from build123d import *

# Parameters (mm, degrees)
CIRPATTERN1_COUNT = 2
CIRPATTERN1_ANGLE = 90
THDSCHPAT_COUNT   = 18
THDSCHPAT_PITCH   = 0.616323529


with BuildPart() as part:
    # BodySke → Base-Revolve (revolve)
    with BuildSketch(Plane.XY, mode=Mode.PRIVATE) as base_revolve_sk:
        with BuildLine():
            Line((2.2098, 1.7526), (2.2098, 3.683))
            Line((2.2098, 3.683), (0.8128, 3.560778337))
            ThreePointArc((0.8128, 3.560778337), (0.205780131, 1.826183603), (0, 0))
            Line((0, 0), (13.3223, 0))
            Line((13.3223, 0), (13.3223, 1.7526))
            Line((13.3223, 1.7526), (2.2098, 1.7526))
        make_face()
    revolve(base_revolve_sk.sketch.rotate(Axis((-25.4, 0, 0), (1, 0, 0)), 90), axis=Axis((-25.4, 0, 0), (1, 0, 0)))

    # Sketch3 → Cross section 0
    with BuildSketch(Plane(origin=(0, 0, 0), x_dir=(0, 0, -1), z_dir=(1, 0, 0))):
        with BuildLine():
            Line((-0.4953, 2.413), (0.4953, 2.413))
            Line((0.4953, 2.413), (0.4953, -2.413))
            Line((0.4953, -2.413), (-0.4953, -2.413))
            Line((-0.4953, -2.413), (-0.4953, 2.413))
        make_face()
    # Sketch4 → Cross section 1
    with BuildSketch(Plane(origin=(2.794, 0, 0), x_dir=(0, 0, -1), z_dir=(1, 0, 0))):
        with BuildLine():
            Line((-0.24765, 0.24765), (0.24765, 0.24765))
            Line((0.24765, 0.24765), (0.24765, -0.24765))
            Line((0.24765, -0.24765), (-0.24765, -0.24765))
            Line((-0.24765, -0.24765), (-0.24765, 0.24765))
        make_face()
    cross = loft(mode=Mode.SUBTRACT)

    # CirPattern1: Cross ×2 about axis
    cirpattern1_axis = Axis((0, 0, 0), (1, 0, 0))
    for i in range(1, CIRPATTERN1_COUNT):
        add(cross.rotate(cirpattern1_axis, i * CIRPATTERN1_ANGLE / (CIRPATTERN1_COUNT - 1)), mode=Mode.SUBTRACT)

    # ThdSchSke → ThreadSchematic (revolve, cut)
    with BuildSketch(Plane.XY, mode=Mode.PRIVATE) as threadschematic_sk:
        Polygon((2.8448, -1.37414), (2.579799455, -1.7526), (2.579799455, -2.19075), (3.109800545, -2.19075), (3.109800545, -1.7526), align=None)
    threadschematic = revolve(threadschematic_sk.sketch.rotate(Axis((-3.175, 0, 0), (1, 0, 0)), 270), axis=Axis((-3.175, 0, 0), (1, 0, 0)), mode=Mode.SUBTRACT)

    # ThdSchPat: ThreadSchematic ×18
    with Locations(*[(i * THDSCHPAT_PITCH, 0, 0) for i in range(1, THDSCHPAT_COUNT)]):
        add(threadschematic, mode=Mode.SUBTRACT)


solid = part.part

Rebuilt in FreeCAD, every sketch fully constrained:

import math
import FreeCAD as App
import Part
import Sketcher
from FreeCAD import Vector
Q = App.Units.Quantity

doc = App.newDocument("Part")
params = doc.addObject("Spreadsheet::Sheet", "Params")
for row, (alias, value) in enumerate([
    ("sketch1_width", "0.4375 in"),
    ("sketch1_height", "0.076 in"),
    ("sketch1_height2", "0.069 in"),
    ("revolution_angle", "360 deg"),
    ("sketch2_width", "0.19 in"),
    ("sketch2_height", "0.039 in"),
    ("groove_angle", "360 deg"),
    ("linearpattern_pitch", "0.616324 mm"),
], start=1):
    params.set(f"A{row}", alias)
    params.set(f"B{row}", "=" + value)
    params.setAlias(f"B{row}", alias)

body = doc.addObject("PartDesign::Body", "Body")

# Sketch on XY plane
sketch1 = body.newObject("Sketcher::SketchObject", "Sketch")
sketch1.AttachmentSupport = (doc.getObject("XY_Plane"), [""])
sketch1.MapMode = "FlatFace"
sketch1.addGeometry(Part.LineSegment(Vector(2.2, 1.8, 0), Vector(2.2, 3.7, 0)), False)
sketch1.addGeometry(Part.LineSegment(Vector(2.2, 3.7, 0), Vector(0.8, 3.6, 0)), False)
sketch1.addGeometry(Part.ArcOfCircle(Part.Circle(Vector(8.2, 0, 0), Vector(0, 0, 1), 8.2), math.radians(154), math.radians(180)), False)
sketch1.addGeometry(Part.LineSegment(Vector(0, 0, 0), Vector(13.3, 0, 0)), False)
sketch1.addGeometry(Part.LineSegment(Vector(13.3, 0, 0), Vector(13.3, 1.8, 0)), False)
sketch1.addGeometry(Part.LineSegment(Vector(13.3, 1.8, 0), Vector(2.2, 1.8, 0)), False)
sketch1.addConstraint(Sketcher.Constraint("Coincident", 0, 2, 1, 1))
sketch1.addConstraint(Sketcher.Constraint("Coincident", 1, 2, 2, 1))
sketch1.addConstraint(Sketcher.Constraint("Coincident", 2, 2, 3, 1))
sketch1.addConstraint(Sketcher.Constraint("Coincident", 3, 2, 4, 1))
sketch1.addConstraint(Sketcher.Constraint("Coincident", 4, 2, 5, 1))
sketch1.addConstraint(Sketcher.Constraint("Coincident", 5, 2, 0, 1))
sketch1.addConstraint(Sketcher.Constraint("Vertical", 0))
sketch1.addConstraint(Sketcher.Constraint("Horizontal", 3))
sketch1.addConstraint(Sketcher.Constraint("Vertical", 4))
sketch1.addConstraint(Sketcher.Constraint("Horizontal", 5))
sketch1.addConstraint(Sketcher.Constraint("Coincident", 2, 2, -1, 1))
sketch1.addConstraint(Sketcher.Constraint("PointOnObject", 2, 3, -1))
sketch1.addConstraint(Sketcher.Constraint("Angle", 1, Q("-175 deg")))
sketch1.addConstraint(Sketcher.Constraint("DistanceX", 5, 2, 5, 1, Q("0.4375 in")))
sketch1.addConstraint(Sketcher.Constraint("DistanceY", 0, 1, 0, 2, Q("0.076 in")))
sketch1.addConstraint(Sketcher.Constraint("DistanceY", 4, 1, 4, 2, Q("0.069 in")))
sketch1.addConstraint(Sketcher.Constraint("DistanceX", 3, 1, 3, 2, Q("0.5245 in")))
sketch1.addConstraint(Sketcher.Constraint("DistanceX", -1, 1, 1, 2, Q("0.032 in")))
sketch1.setExpression("Constraints[13]", "Params.sketch1_width")
sketch1.setExpression("Constraints[14]", "Params.sketch1_height")
sketch1.setExpression("Constraints[15]", "Params.sketch1_height2")
revolution = body.newObject("PartDesign::Revolution", "Revolution")
revolution.Profile = sketch1
revolution.ReferenceAxis = (sketch1, ["H_Axis"])
revolution.setExpression("Angle", "Params.revolution_angle")

# Sketch on YZ plane
sketch2 = body.newObject("Sketcher::SketchObject", "Sketch001")
sketch2.AttachmentSupport = (doc.getObject("YZ_Plane"), [""])
sketch2.MapMode = "FlatFace"
sketch2.addGeometry(Part.LineSegment(Vector(2.4, -0.5, 0), Vector(2.4, 0.5, 0)), False)
sketch2.addGeometry(Part.LineSegment(Vector(2.4, 0.5, 0), Vector(-2.4, 0.5, 0)), False)
sketch2.addGeometry(Part.LineSegment(Vector(-2.4, 0.5, 0), Vector(-2.4, -0.5, 0)), False)
sketch2.addGeometry(Part.LineSegment(Vector(-2.4, -0.5, 0), Vector(2.4, -0.5, 0)), False)
sketch2.addConstraint(Sketcher.Constraint("Coincident", 0, 2, 1, 1))
sketch2.addConstraint(Sketcher.Constraint("Coincident", 1, 2, 2, 1))
sketch2.addConstraint(Sketcher.Constraint("Coincident", 2, 2, 3, 1))
sketch2.addConstraint(Sketcher.Constraint("Coincident", 3, 2, 0, 1))
sketch2.addConstraint(Sketcher.Constraint("Vertical", 0))
sketch2.addConstraint(Sketcher.Constraint("Horizontal", 1))
sketch2.addConstraint(Sketcher.Constraint("Vertical", 2))
sketch2.addConstraint(Sketcher.Constraint("Horizontal", 3))
sketch2.addConstraint(Sketcher.Constraint("Symmetric", 0, 2, 2, 2, -1, 1))
sketch2.addConstraint(Sketcher.Constraint("DistanceX", 1, 2, 1, 1, Q("0.19 in")))
sketch2.addConstraint(Sketcher.Constraint("DistanceY", 0, 1, 0, 2, Q("0.039 in")))
sketch2.setExpression("Constraints[9]", "Params.sketch2_width")
sketch2.setExpression("Constraints[10]", "Params.sketch2_height")

# Sketch on YZ plane
sketch3 = body.newObject("Sketcher::SketchObject", "Sketch002")
sketch3.AttachmentSupport = (doc.getObject("YZ_Plane"), [""])
sketch3.MapMode = "FlatFace"
sketch3.AttachmentOffset = App.Placement(Vector(0, 0, 0.11 * 25.4), App.Rotation())
sketch3.addGeometry(Part.LineSegment(Vector(0.25, -0.25, 0), Vector(0.25, 0.25, 0)), False)
sketch3.addGeometry(Part.LineSegment(Vector(0.25, 0.25, 0), Vector(-0.25, 0.25, 0)), False)
sketch3.addGeometry(Part.LineSegment(Vector(-0.25, 0.25, 0), Vector(-0.25, -0.25, 0)), False)
sketch3.addGeometry(Part.LineSegment(Vector(-0.25, -0.25, 0), Vector(0.25, -0.25, 0)), False)
sketch3.addConstraint(Sketcher.Constraint("Coincident", 0, 2, 1, 1))
sketch3.addConstraint(Sketcher.Constraint("Coincident", 1, 2, 2, 1))
sketch3.addConstraint(Sketcher.Constraint("Coincident", 2, 2, 3, 1))
sketch3.addConstraint(Sketcher.Constraint("Coincident", 3, 2, 0, 1))
sketch3.addConstraint(Sketcher.Constraint("Vertical", 0))
sketch3.addConstraint(Sketcher.Constraint("Horizontal", 1))
sketch3.addConstraint(Sketcher.Constraint("Vertical", 2))
sketch3.addConstraint(Sketcher.Constraint("Horizontal", 3))
sketch3.addConstraint(Sketcher.Constraint("Symmetric", 0, 2, 2, 2, -1, 1))
sketch3.addConstraint(Sketcher.Constraint("Equal", 3, 0))
sketch3.addConstraint(Sketcher.Constraint("DistanceX", 1, 2, 1, 1, Q("0.0195 in")))

subtractiveloft = body.newObject("PartDesign::SubtractiveLoft", "SubtractiveLoft")
subtractiveloft.Profile = sketch2
subtractiveloft.Sections = [sketch3]
doc.recompute()

polarpattern = body.newObject("PartDesign::PolarPattern", "PolarPattern")
polarpattern.Originals = [subtractiveloft]
polarpattern.Axis = (doc.getObject("X_Axis"), [""])
polarpattern.Angle = 90
polarpattern.Occurrences = 2
body.Tip = polarpattern

# Sketch on XY plane
sketch4 = body.newObject("Sketcher::SketchObject", "Sketch003")
sketch4.AttachmentSupport = (doc.getObject("XY_Plane"), [""])
sketch4.MapMode = "FlatFace"
sketch4.addGeometry(Part.LineSegment(Vector(2.84, -1.37, 0), Vector(2.58, -1.75, 0)), False)
sketch4.addGeometry(Part.LineSegment(Vector(2.58, -1.75, 0), Vector(2.58, -2.19, 0)), False)
sketch4.addGeometry(Part.LineSegment(Vector(2.58, -2.19, 0), Vector(3.11, -2.19, 0)), False)
sketch4.addGeometry(Part.LineSegment(Vector(3.11, -2.19, 0), Vector(3.11, -1.75, 0)), False)
sketch4.addGeometry(Part.LineSegment(Vector(3.11, -1.75, 0), Vector(2.84, -1.37, 0)), False)
sketch4.addConstraint(Sketcher.Constraint("Coincident", 0, 2, 1, 1))
sketch4.addConstraint(Sketcher.Constraint("Coincident", 1, 2, 2, 1))
sketch4.addConstraint(Sketcher.Constraint("Coincident", 2, 2, 3, 1))
sketch4.addConstraint(Sketcher.Constraint("Coincident", 3, 2, 4, 1))
sketch4.addConstraint(Sketcher.Constraint("Coincident", 4, 2, 0, 1))
sketch4.addConstraint(Sketcher.Constraint("Vertical", 1))
sketch4.addConstraint(Sketcher.Constraint("Horizontal", 2))
sketch4.addConstraint(Sketcher.Constraint("Vertical", 3))
sketch4.addConstraint(Sketcher.Constraint("Horizontal", 0, 2, 3, 2))
sketch4.addConstraint(Sketcher.Constraint("Equal", 0, 4))
sketch4.addConstraint(Sketcher.Constraint("Angle", 0, Q("-125 deg")))
sketch4.addConstraint(Sketcher.Constraint("DistanceY", 0, 2, -1, 1, Q("0.069 in")))
sketch4.addConstraint(Sketcher.Constraint("DistanceX", -1, 1, 4, 2, Q("0.112 in")))
sketch4.addConstraint(Sketcher.Constraint("DistanceX", 2, 1, 2, 2, Q("0.530001 mm")))
sketch4.addConstraint(Sketcher.Constraint("DistanceY", 1, 2, 1, 1, Q("0.43815 mm")))
groove = body.newObject("PartDesign::Groove", "Groove")
groove.Profile = sketch4
groove.ReferenceAxis = (sketch4, ["H_Axis"])
groove.setExpression("Angle", "Params.groove_angle")
doc.recompute()

linearpattern = body.newObject("PartDesign::LinearPattern", "LinearPattern")
linearpattern.Originals = [groove]
linearpattern.Direction = (doc.getObject("X_Axis"), [""])
linearpattern.Mode = "offset"
linearpattern.setExpression("Offset", "Params.linearpattern_pitch")
linearpattern.Occurrences = 18
body.Tip = linearpattern

doc.recompute()
